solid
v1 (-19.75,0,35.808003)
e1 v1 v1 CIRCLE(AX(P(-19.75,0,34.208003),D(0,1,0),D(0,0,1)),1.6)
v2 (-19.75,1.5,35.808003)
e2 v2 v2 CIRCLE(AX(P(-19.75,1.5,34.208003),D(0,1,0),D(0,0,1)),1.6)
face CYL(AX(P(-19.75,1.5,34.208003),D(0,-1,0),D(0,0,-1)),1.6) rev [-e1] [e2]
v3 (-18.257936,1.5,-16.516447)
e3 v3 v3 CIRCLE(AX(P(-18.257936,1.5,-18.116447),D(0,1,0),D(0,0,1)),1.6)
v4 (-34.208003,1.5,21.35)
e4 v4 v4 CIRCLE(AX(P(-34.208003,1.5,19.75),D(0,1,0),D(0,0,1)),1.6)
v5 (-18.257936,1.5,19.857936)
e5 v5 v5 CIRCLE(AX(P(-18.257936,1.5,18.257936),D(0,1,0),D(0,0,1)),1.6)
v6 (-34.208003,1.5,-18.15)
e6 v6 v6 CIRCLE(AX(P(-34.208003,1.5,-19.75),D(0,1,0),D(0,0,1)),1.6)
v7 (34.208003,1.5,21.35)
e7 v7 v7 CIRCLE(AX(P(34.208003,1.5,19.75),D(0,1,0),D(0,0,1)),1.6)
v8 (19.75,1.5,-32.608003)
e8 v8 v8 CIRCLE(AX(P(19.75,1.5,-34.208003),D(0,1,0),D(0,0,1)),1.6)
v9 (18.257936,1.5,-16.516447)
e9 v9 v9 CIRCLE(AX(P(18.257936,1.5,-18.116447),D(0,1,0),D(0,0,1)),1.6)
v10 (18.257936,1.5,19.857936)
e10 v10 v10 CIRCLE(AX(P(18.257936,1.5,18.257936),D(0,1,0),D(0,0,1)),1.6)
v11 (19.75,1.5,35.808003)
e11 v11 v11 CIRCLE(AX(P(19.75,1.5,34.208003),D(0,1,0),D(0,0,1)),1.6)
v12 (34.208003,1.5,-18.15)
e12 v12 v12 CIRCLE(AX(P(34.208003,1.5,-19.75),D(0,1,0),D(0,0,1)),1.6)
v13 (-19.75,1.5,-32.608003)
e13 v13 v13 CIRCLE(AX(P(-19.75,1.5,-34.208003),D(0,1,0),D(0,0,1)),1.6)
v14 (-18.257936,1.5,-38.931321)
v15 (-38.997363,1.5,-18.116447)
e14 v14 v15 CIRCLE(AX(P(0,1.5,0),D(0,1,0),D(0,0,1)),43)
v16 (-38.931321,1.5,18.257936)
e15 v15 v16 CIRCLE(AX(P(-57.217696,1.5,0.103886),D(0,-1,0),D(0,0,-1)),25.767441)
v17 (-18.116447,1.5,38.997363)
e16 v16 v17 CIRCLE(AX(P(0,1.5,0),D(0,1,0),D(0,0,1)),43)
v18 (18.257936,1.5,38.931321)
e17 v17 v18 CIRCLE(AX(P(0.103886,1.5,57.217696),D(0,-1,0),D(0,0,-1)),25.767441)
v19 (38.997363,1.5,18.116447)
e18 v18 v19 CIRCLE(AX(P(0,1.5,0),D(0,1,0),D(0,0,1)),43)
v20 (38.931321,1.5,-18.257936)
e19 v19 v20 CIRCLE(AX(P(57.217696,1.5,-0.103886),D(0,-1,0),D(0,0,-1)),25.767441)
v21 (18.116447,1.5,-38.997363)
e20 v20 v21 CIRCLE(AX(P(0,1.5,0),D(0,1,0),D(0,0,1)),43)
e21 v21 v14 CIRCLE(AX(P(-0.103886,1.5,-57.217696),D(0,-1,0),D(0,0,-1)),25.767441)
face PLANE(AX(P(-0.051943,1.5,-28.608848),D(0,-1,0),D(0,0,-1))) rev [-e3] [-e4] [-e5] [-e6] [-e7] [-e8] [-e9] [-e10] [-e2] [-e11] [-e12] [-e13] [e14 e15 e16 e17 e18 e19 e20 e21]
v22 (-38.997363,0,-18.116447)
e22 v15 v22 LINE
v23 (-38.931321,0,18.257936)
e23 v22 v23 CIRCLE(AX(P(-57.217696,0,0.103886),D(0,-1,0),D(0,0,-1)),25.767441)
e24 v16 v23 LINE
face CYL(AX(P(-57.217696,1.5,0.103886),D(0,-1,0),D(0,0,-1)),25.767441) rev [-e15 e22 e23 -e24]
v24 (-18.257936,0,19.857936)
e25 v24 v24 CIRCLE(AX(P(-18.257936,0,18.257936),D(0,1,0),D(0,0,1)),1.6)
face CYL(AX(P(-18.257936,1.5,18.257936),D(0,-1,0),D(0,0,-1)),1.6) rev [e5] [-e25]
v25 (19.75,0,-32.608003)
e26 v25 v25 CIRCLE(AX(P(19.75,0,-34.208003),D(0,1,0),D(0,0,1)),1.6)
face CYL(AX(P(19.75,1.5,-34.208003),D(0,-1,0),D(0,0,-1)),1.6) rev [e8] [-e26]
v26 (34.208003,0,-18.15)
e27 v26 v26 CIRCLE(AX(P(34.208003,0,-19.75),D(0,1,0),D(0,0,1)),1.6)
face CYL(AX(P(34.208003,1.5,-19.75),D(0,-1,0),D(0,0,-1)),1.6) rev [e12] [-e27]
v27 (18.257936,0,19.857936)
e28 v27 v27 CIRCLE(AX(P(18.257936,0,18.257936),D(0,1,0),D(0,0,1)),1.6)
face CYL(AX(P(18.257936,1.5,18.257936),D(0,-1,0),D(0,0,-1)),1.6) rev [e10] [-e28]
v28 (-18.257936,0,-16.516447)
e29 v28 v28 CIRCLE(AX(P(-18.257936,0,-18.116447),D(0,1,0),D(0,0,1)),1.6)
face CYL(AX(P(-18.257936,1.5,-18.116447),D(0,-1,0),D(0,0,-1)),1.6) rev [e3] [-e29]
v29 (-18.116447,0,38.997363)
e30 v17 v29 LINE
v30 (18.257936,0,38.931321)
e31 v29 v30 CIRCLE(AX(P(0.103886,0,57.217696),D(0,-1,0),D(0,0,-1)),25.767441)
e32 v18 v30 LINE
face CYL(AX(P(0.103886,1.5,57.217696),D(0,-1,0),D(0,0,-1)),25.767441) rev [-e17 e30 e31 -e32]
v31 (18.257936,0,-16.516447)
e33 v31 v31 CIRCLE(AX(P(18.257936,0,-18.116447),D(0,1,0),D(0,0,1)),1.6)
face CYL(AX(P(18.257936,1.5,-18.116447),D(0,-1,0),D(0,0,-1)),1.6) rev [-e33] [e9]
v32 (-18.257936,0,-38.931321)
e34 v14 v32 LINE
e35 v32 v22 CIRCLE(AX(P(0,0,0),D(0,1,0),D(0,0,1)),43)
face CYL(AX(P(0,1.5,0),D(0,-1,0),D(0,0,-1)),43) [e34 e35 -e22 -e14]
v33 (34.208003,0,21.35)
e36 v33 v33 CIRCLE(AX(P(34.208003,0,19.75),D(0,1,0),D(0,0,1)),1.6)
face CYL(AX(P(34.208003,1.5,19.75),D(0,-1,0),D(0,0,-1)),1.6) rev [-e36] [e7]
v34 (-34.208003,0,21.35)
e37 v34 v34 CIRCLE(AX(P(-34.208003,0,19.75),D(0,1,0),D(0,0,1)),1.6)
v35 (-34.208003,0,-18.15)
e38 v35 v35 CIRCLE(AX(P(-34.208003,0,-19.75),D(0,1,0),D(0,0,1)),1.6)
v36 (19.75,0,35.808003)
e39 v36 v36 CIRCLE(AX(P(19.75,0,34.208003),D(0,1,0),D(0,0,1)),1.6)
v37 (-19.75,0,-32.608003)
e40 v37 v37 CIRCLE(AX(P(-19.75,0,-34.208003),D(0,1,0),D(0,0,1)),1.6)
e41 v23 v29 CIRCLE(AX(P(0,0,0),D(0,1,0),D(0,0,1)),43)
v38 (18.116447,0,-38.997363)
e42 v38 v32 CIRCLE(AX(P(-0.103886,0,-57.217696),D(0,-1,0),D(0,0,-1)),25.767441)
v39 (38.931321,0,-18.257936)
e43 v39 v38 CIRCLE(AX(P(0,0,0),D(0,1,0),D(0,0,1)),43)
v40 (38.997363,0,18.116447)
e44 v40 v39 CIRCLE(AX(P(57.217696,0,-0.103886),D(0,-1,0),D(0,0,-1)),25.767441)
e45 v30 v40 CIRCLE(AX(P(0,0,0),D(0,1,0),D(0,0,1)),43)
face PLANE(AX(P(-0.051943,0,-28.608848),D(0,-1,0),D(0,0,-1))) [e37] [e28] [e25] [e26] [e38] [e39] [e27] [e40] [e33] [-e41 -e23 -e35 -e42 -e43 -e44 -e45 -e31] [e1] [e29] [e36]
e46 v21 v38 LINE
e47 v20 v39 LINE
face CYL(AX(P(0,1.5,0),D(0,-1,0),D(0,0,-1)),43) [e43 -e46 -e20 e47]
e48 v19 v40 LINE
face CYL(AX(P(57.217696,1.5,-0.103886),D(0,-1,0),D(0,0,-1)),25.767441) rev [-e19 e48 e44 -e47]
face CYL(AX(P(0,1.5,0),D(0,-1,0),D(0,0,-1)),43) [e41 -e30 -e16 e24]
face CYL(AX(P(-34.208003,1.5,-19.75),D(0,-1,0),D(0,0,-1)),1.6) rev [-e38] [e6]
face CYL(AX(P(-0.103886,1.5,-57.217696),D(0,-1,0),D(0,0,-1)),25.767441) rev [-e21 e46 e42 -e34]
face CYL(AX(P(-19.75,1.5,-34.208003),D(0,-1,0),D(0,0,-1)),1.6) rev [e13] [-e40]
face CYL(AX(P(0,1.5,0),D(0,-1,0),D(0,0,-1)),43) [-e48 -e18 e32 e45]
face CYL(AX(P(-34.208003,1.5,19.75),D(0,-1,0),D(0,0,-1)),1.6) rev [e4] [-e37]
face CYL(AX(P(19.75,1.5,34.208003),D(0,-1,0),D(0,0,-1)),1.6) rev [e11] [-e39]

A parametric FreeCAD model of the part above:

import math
import FreeCAD as App
import Part
import Sketcher
Q = App.Units.Quantity

doc = App.newDocument("Part")
params = doc.addObject("Spreadsheet::Sheet", "Params")
for row, (alias, value) in enumerate([
    ("sketch1_radius", "43 mm"),
    ("sketch1_diameter", "3.2 mm"),
    ("pad1_length", "1.5 mm"),
], start=1):
    params.set(f"A{row}", alias)
    params.set(f"B{row}", "=" + value)
    params.setAlias(f"B{row}", alias)

body = doc.addObject("PartDesign::Body", "Body")

sketch1 = body.newObject("Sketcher::SketchObject", "Sketch")
sketch1.AttachmentSupport = (doc.getObject("XZ_Plane"), [""])
sketch1.MapMode = "FlatFace"
sketch1.addGeometry([
    Part.ArcOfCircle(Part.Circle(App.Vector(0, 0, 0), App.Vector(0, 0, 1), 43), math.radians(-155), math.radians(-115)),
    Part.ArcOfCircle(Part.Circle(App.Vector(-57.2, 0.1, 0), App.Vector(0, 0, 1), 25.8), math.radians(-45), math.radians(45)),
    Part.ArcOfCircle(Part.Circle(App.Vector(0, 0, 0), App.Vector(0, 0, 1), 43), math.radians(115), math.radians(155)),
    Part.ArcOfCircle(Part.Circle(App.Vector(0.1, 57.2, 0), App.Vector(0, 0, 1), 25.8), math.radians(-135), math.radians(-45)),
    Part.ArcOfCircle(Part.Circle(App.Vector(0, 0, 0), App.Vector(0, 0, 1), 43), math.radians(25), math.radians(65)),
    Part.ArcOfCircle(Part.Circle(App.Vector(57.2, -0.1, 0), App.Vector(0, 0, 1), 25.8), math.radians(135), math.radians(225)),
    Part.ArcOfCircle(Part.Circle(App.Vector(0, 0, 0), App.Vector(0, 0, 1), 43), math.radians(-65), math.radians(-25)),
    Part.ArcOfCircle(Part.Circle(App.Vector(-0.1, -57.2, 0), App.Vector(0, 0, 1), 25.8), math.radians(45), math.radians(135)),
    Part.Circle(App.Vector(-19.8, 34.2, 0), App.Vector(0, 0, 1), 1.6),
    Part.Circle(App.Vector(-34.2, 19.8, 0), App.Vector(0, 0, 1), 1.6),
    Part.Circle(App.Vector(-18.3, 18.3, 0), App.Vector(0, 0, 1), 1.6),
    Part.Circle(App.Vector(19.8, 34.2, 0), App.Vector(0, 0, 1), 1.6),
    Part.Circle(App.Vector(18.3, 18.3, 0), App.Vector(0, 0, 1), 1.6),
    Part.Circle(App.Vector(34.2, 19.8, 0), App.Vector(0, 0, 1), 1.6),
    Part.Circle(App.Vector(-34.2, -19.8, 0), App.Vector(0, 0, 1), 1.6),
    Part.Circle(App.Vector(-18.3, -18.1, 0), App.Vector(0, 0, 1), 1.6),
    Part.Circle(App.Vector(-19.8, -34.2, 0), App.Vector(0, 0, 1), 1.6),
    Part.Circle(App.Vector(18.3, -18.1, 0), App.Vector(0, 0, 1), 1.6),
    Part.Circle(App.Vector(34.2, -19.8, 0), App.Vector(0, 0, 1), 1.6),
    Part.Circle(App.Vector(19.8, -34.2, 0), App.Vector(0, 0, 1), 1.6),
], False)
sketch1.addConstraint([
    Sketcher.Constraint("Coincident", 0, 1, 1, 1),
    Sketcher.Constraint("Coincident", 1, 2, 2, 2),
    Sketcher.Constraint("Coincident", 2, 1, 3, 1),
    Sketcher.Constraint("Coincident", 3, 2, 4, 2),
    Sketcher.Constraint("Coincident", 4, 1, 5, 1),
    Sketcher.Constraint("Coincident", 5, 2, 6, 2),
    Sketcher.Constraint("Coincident", 6, 1, 7, 1),
    Sketcher.Constraint("Coincident", 7, 2, 0, 2),
    Sketcher.Constraint("Coincident", 0, 3, -1, 1),
    Sketcher.Constraint("Coincident", 2, 3, -1, 1),
    Sketcher.Constraint("Coincident", 4, 3, -1, 1),
    Sketcher.Constraint("Coincident", 6, 3, -1, 1),
    Sketcher.Constraint("Equal", 0, 2),
    Sketcher.Constraint("Equal", 1, 3),
    Sketcher.Constraint("Equal", 2, 4),
    Sketcher.Constraint("Equal", 3, 5),
    Sketcher.Constraint("Equal", 4, 6),
    Sketcher.Constraint("Equal", 5, 7),
    Sketcher.Constraint("Equal", 8, 9),
    Sketcher.Constraint("Equal", 9, 10),
    Sketcher.Constraint("Equal", 10, 11),
    Sketcher.Constraint("Equal", 11, 12),
    Sketcher.Constraint("Equal", 12, 13),
    Sketcher.Constraint("Equal", 13, 14),
    Sketcher.Constraint("Equal", 14, 15),
    Sketcher.Constraint("Equal", 15, 16),
    Sketcher.Constraint("Equal", 16, 17),
    Sketcher.Constraint("Equal", 17, 18),
    Sketcher.Constraint("Equal", 18, 19),
    Sketcher.Constraint("Symmetric", 1, 3, 5, 3, -1, 1),
    Sketcher.Constraint("Symmetric", 3, 3, 7, 3, -1, 1),
    Sketcher.Constraint("Symmetric", 13, 3, 14, 3, -1, 1),
    Sketcher.Constraint("Symmetric", 11, 3, 16, 3, -1, 1),
    Sketcher.Constraint("Symmetric", 9, 3, 18, 3, -1, 1),
    Sketcher.Constraint("Symmetric", 8, 3, 19, 3, -1, 1),
    Sketcher.Constraint("Symmetric", 8, 3, 11, 3, -2),
    Sketcher.Constraint("Symmetric", 10, 3, 12, 3, -2),
    Sketcher.Constraint("Symmetric", 9, 3, 13, 3, -2),
    Sketcher.Constraint("Symmetric", 15, 3, 17, 3, -2),
    Sketcher.Constraint("Horizontal", 17, 3, 0, 1),
    Sketcher.Constraint("Horizontal", 12, 3, 1, 2),
    Sketcher.Constraint("Vertical", 10, 3, 15, 3),
    Sketcher.Constraint("Vertical", 17, 3, 3, 2),
    Sketcher.Constraint("Radius", 0, Q("43 mm")),
    Sketcher.Constraint("Diameter", 8, Q("3.2 mm")),
    Sketcher.Constraint("DistanceX", 8, 3, 11, 3, Q("39.5 mm")),
    Sketcher.Constraint("DistanceY", 14, 3, 9, 3, Q("39.5 mm")),
    Sketcher.Constraint("Radius", 1, Q("25.767441 mm")),
    Sketcher.Constraint("DistanceX", 1, 2, -1, 1, Q("38.931321 mm")),
    Sketcher.Constraint("DistanceY", -1, 1, 3, 2, Q("38.931321 mm")),
    Sketcher.Constraint("DistanceX", 1, 3, 3, 3, Q("57.321581 mm")),
    Sketcher.Constraint("DistanceY", 1, 3, 3, 3, Q("57.11381 mm")),
    Sketcher.Constraint("DistanceX", 0, 1, 14, 3, Q("4.78936 mm")),
    Sketcher.Constraint("DistanceY", 8, 3, 2, 1, Q("4.78936 mm")),
])
sketch1.setExpression("Constraints[43]", "Params.sketch1_radius")
sketch1.setExpression("Constraints[44]", "Params.sketch1_diameter")
pad1 = body.newObject("PartDesign::Pad", "Pad")
pad1.Profile = sketch1
pad1.setExpression("Length", "Params.pad1_length")
pad1.Reversed = True

doc.recompute()
